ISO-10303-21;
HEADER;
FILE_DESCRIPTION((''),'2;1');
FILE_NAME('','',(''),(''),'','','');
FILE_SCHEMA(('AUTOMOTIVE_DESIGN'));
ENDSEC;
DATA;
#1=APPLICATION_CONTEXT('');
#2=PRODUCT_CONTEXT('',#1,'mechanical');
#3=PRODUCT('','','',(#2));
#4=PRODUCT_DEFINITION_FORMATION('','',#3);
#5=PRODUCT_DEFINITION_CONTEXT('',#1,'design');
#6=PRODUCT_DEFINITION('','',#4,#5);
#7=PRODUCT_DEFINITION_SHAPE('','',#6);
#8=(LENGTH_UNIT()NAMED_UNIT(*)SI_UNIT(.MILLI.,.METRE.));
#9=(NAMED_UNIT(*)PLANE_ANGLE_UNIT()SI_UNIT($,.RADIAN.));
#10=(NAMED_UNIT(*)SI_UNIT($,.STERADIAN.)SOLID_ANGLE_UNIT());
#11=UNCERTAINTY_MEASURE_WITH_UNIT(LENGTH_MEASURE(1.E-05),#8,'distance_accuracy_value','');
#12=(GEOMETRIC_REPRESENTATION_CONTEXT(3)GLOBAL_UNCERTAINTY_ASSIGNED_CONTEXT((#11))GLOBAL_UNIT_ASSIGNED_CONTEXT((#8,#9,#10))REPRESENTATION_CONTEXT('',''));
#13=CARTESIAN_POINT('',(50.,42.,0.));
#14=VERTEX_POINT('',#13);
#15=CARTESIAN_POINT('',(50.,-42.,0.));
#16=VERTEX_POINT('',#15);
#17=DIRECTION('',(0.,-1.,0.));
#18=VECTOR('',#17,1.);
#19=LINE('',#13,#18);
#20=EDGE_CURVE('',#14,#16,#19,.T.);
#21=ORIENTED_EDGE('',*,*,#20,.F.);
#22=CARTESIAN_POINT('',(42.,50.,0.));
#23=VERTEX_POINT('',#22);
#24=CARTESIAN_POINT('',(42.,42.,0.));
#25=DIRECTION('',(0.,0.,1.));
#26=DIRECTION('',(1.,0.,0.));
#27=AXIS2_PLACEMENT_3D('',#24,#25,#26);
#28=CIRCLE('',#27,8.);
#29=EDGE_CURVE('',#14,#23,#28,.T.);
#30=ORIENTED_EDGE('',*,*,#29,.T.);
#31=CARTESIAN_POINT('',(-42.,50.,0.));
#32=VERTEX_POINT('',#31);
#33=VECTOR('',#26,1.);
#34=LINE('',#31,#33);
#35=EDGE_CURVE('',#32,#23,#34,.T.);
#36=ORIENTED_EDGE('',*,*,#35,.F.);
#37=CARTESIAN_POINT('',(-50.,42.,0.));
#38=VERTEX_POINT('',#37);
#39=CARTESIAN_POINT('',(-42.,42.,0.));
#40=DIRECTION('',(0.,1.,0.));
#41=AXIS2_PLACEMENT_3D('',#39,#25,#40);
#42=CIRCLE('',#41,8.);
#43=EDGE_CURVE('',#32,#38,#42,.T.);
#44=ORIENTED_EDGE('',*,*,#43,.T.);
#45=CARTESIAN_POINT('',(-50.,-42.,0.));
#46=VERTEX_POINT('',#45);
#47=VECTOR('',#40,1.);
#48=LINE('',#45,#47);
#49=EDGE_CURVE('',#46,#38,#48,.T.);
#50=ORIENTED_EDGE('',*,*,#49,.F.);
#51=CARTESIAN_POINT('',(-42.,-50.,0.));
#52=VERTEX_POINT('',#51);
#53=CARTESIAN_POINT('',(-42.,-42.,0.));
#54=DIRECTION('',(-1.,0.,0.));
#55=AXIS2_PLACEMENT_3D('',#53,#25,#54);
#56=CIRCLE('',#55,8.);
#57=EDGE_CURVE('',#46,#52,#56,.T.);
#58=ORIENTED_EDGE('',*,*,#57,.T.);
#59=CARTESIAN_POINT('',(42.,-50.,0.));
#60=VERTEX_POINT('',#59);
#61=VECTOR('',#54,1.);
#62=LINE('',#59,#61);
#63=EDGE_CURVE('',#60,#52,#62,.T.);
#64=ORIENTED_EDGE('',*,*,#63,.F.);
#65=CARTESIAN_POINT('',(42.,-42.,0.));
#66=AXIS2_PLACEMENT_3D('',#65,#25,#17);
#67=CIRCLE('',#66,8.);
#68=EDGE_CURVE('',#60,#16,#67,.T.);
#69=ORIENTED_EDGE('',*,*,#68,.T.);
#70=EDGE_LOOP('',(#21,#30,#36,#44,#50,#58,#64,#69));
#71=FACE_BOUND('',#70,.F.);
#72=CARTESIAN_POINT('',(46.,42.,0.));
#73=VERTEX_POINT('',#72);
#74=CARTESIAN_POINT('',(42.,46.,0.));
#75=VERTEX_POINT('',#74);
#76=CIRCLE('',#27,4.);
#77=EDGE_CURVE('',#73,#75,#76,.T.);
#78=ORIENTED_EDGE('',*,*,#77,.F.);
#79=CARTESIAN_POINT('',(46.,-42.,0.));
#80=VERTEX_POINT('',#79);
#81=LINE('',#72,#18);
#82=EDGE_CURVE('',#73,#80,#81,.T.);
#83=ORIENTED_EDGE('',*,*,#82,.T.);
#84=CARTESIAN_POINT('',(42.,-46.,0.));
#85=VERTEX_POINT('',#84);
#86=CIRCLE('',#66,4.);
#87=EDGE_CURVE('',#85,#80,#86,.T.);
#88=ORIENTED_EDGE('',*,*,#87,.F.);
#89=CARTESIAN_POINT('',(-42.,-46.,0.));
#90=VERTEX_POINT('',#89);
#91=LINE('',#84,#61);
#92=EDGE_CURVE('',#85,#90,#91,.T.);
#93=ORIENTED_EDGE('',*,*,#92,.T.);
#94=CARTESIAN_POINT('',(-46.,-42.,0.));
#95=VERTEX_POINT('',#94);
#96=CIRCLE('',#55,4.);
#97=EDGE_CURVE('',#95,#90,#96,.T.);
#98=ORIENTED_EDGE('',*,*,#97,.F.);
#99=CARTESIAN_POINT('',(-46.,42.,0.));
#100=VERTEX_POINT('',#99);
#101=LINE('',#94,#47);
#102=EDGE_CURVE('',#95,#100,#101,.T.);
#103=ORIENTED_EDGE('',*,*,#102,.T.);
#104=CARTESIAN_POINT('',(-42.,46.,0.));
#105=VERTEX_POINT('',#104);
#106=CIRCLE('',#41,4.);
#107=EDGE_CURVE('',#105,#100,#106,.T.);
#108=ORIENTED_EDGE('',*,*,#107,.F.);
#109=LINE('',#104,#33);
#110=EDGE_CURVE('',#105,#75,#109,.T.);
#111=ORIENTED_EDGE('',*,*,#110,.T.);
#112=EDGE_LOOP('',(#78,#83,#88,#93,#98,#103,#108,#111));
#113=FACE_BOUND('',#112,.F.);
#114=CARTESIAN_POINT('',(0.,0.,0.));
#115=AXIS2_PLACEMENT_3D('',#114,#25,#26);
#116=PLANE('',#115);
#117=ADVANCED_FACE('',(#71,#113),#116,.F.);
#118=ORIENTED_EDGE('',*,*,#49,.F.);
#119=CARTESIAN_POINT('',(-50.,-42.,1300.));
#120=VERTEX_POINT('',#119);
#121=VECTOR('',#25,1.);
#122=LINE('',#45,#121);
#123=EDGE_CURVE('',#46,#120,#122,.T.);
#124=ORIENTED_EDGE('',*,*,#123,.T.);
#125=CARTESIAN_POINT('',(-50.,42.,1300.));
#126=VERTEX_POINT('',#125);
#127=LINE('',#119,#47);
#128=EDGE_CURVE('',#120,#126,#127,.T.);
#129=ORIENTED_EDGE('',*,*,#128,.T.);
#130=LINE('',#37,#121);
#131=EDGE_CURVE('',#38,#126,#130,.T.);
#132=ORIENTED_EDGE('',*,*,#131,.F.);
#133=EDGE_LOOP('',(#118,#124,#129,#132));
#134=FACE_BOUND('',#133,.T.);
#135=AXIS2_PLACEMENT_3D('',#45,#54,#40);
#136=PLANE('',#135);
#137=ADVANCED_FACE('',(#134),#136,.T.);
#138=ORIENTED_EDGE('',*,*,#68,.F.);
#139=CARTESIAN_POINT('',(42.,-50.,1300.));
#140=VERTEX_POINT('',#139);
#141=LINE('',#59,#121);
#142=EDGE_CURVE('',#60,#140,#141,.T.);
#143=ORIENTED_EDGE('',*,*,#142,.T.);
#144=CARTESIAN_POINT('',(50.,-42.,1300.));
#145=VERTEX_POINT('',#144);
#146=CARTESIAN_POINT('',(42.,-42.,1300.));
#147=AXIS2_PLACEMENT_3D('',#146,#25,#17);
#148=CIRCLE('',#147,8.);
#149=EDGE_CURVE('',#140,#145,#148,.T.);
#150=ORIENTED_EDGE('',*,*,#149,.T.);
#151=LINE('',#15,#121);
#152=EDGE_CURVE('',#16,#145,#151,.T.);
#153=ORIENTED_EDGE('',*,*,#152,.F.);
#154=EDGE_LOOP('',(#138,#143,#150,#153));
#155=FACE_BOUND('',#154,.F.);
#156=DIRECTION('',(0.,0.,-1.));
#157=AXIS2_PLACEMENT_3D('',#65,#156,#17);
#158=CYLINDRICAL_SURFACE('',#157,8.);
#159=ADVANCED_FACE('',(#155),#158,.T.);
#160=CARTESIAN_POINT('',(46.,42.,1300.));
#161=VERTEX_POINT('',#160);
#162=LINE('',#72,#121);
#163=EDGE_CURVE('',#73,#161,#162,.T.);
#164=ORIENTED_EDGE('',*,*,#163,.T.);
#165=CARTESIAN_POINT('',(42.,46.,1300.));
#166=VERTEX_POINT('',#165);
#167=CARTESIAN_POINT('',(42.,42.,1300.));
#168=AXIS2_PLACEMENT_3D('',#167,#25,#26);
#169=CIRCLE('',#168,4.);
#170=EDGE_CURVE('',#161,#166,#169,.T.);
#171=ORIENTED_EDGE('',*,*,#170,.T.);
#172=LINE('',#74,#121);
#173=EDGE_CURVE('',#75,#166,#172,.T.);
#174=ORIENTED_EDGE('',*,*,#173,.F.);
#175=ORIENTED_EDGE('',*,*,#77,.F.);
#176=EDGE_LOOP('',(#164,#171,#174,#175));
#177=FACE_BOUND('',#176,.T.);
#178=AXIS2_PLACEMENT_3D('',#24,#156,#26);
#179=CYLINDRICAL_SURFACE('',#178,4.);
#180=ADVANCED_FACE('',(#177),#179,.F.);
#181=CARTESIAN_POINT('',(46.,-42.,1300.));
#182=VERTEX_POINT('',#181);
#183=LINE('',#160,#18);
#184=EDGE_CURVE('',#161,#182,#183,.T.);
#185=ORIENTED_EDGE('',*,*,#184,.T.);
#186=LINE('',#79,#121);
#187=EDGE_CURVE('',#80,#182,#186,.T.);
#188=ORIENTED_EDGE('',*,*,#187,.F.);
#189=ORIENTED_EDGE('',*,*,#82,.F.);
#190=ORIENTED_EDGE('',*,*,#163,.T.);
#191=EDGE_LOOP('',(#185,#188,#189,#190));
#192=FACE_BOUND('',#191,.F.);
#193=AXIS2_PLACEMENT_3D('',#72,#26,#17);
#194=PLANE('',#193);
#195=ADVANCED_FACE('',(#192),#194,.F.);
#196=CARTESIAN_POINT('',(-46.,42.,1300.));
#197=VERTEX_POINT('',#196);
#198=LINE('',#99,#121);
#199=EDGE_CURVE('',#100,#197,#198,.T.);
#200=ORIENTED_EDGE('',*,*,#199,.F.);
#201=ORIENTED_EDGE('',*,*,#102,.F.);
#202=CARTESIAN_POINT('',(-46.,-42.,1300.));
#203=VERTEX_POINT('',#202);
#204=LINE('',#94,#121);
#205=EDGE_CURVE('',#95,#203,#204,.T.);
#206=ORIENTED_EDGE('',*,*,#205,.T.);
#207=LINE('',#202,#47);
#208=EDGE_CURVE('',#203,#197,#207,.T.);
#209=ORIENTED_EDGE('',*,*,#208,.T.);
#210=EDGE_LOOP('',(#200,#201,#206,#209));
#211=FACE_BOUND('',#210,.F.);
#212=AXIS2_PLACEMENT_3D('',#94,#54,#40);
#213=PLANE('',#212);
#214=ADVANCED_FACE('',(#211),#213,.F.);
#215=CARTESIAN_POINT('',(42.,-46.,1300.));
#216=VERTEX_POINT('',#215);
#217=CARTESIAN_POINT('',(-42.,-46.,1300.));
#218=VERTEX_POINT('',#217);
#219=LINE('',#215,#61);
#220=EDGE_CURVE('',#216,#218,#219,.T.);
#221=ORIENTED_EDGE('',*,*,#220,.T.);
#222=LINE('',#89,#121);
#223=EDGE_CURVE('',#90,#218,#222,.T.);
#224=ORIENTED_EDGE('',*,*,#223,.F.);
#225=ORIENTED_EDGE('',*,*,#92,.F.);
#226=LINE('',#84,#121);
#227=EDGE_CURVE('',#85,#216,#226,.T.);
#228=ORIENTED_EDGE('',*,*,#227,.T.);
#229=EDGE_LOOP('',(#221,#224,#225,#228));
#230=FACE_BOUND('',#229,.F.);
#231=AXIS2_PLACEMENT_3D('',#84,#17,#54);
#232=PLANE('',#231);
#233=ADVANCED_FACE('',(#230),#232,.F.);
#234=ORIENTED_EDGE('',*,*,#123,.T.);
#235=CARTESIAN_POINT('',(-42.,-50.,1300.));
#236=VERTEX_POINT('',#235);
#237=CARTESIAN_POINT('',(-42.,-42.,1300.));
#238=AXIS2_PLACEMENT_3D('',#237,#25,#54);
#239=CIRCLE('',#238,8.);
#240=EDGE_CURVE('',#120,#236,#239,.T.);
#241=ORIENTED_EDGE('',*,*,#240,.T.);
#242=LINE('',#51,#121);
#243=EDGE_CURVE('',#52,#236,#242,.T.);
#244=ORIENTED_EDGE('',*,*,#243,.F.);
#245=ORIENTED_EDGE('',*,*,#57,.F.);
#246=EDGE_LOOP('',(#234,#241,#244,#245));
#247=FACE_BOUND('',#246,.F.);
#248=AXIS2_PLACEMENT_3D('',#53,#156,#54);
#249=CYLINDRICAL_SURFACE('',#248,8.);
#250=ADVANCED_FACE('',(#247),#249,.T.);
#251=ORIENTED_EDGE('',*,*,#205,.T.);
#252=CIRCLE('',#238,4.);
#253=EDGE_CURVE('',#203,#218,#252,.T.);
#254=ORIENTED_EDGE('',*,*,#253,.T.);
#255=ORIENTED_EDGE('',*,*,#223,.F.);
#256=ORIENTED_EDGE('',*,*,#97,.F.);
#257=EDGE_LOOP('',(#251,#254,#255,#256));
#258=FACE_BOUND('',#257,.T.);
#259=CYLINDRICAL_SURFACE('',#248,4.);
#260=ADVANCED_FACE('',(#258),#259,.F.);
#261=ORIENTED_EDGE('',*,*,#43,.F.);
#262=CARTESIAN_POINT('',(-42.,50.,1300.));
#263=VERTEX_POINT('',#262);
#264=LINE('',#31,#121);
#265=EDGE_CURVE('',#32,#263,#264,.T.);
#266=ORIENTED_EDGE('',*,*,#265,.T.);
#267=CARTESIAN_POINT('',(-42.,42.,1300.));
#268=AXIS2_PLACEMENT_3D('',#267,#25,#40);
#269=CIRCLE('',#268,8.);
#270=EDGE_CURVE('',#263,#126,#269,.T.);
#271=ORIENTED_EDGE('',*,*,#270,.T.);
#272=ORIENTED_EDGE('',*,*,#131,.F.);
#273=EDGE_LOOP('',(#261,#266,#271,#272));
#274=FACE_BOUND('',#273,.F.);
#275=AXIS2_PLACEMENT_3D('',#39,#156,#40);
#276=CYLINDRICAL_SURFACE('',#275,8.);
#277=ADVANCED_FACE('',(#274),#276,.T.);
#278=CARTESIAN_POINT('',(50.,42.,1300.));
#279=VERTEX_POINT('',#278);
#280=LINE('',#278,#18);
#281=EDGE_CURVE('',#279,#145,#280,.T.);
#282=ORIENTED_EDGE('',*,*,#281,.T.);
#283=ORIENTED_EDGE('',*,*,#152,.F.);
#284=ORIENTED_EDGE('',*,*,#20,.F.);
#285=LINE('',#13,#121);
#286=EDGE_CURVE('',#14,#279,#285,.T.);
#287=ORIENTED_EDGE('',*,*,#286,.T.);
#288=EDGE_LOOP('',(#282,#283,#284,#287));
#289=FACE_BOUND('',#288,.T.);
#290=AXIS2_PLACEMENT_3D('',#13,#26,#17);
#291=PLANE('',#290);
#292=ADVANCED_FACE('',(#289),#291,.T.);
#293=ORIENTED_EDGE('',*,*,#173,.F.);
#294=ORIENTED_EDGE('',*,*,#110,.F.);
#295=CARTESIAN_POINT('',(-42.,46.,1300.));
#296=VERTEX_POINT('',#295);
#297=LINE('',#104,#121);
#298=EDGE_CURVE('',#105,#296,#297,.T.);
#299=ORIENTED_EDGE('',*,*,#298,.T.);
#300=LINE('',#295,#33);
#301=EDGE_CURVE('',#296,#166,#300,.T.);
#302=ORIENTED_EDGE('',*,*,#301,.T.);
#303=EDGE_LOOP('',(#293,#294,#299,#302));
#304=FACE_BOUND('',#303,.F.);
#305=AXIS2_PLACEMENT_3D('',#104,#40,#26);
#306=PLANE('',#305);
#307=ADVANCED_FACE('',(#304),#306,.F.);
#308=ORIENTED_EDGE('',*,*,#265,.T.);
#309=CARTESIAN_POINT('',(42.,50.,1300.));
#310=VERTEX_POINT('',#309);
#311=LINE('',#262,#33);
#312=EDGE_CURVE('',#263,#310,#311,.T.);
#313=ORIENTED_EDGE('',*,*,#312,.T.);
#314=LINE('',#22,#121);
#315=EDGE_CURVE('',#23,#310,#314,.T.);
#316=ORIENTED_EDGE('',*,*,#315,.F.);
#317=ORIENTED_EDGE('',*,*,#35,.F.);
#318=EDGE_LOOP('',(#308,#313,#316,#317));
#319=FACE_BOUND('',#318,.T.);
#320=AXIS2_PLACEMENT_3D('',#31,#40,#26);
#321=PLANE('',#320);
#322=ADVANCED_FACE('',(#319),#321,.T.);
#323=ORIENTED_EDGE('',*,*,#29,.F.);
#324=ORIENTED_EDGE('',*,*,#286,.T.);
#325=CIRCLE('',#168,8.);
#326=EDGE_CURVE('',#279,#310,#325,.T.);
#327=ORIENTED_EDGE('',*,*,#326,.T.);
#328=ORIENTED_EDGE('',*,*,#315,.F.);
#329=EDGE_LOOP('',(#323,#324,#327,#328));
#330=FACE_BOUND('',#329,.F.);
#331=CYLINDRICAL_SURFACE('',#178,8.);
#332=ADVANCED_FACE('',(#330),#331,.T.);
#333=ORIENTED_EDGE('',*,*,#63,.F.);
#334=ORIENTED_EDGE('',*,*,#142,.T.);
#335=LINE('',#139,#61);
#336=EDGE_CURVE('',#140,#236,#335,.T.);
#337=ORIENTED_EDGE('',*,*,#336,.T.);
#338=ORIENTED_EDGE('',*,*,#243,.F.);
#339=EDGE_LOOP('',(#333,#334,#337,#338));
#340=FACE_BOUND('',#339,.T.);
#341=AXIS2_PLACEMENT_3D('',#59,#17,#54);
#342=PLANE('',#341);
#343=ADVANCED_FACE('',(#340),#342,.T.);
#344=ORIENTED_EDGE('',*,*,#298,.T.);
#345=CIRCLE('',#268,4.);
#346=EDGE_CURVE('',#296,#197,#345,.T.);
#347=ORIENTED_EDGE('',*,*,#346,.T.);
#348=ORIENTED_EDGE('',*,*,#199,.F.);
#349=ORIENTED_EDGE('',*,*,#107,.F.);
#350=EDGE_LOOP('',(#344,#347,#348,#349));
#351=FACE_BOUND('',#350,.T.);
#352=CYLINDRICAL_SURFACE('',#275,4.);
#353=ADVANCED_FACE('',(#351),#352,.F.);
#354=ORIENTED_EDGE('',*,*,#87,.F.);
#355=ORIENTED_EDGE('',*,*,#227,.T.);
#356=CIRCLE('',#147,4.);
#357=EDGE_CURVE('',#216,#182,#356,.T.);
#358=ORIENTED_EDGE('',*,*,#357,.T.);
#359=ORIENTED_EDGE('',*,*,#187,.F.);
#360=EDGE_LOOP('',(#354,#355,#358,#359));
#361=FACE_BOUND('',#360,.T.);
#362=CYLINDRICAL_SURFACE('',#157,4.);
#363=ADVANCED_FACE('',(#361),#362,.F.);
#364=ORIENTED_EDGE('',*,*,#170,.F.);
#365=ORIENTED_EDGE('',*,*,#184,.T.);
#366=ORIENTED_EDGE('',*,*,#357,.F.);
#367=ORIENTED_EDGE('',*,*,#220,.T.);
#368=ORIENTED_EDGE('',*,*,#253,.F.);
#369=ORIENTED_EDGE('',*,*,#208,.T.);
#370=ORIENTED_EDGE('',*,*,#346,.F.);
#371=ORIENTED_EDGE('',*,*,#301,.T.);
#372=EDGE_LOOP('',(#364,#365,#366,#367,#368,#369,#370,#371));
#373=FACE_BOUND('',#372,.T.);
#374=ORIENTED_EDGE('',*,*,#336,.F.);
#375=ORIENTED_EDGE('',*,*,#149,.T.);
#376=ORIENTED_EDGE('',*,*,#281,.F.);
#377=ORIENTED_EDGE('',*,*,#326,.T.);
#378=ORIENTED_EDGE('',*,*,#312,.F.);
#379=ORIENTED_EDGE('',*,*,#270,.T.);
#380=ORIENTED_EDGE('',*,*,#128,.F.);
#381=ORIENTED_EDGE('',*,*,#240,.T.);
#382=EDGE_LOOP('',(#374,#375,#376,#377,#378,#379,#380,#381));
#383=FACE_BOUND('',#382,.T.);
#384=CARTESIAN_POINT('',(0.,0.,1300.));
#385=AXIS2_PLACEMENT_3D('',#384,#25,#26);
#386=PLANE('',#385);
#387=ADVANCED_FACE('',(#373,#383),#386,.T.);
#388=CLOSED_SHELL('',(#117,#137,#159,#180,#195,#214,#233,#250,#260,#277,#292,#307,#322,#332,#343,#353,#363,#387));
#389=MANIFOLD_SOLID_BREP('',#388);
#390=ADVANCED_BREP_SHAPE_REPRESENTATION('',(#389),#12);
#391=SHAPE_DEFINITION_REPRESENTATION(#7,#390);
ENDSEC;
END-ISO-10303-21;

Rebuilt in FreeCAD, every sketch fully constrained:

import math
import FreeCAD as App
import Part
import Sketcher
Q = App.Units.Quantity

doc = App.newDocument("Part")
body = doc.addObject("PartDesign::Body", "Body")

# Sketch on XY plane
sketch1 = body.newObject("Sketcher::SketchObject", "Sketch")
sketch1.AttachmentSupport = (doc.getObject("XY_Plane"), [""])
sketch1.MapMode = "FlatFace"
sketch1.addGeometry(Part.LineSegment(App.Vector(-50, 42, 0), App.Vector(-50, -42, 0)), False)
sketch1.addGeometry(Part.ArcOfCircle(Part.Circle(App.Vector(-42, -42, 0), App.Vector(0, 0, 1), 8), math.radians(180), math.radians(270)), False)
sketch1.addGeometry(Part.LineSegment(App.Vector(-42, -50, 0), App.Vector(42, -50, 0)), False)
sketch1.addGeometry(Part.ArcOfCircle(Part.Circle(App.Vector(42, -42, 0), App.Vector(0, 0, 1), 8), math.radians(-90), math.radians(0)), False)
sketch1.addGeometry(Part.LineSegment(App.Vector(50, -42, 0), App.Vector(50, 42, 0)), False)
sketch1.addGeometry(Part.ArcOfCircle(Part.Circle(App.Vector(42, 42, 0), App.Vector(0, 0, 1), 8), math.radians(0), math.radians(90)), False)
sketch1.addGeometry(Part.LineSegment(App.Vector(42, 50, 0), App.Vector(-42, 50, 0)), False)
sketch1.addGeometry(Part.ArcOfCircle(Part.Circle(App.Vector(-42, 42, 0), App.Vector(0, 0, 1), 8), math.radians(90), math.radians(180)), False)
sketch1.addGeometry(Part.ArcOfCircle(Part.Circle(App.Vector(-42, 42, 0), App.Vector(0, 0, 1), 4), math.radians(90), math.radians(180)), False)
sketch1.addGeometry(Part.LineSegment(App.Vector(-42, 46, 0), App.Vector(42, 46, 0)), False)
sketch1.addGeometry(Part.ArcOfCircle(Part.Circle(App.Vector(42, 42, 0), App.Vector(0, 0, 1), 4), math.radians(0), math.radians(90)), False)
sketch1.addGeometry(Part.LineSegment(App.Vector(46, 42, 0), App.Vector(46, -42, 0)), False)
sketch1.addGeometry(Part.ArcOfCircle(Part.Circle(App.Vector(42, -42, 0), App.Vector(0, 0, 1), 4), math.radians(-90), math.radians(0)), False)
sketch1.addGeometry(Part.LineSegment(App.Vector(42, -46, 0), App.Vector(-42, -46, 0)), False)
sketch1.addGeometry(Part.ArcOfCircle(Part.Circle(App.Vector(-42, -42, 0), App.Vector(0, 0, 1), 4), math.radians(180), math.radians(270)), False)
sketch1.addGeometry(Part.LineSegment(App.Vector(-46, -42, 0), App.Vector(-46, 42, 0)), False)
sketch1.addConstraint(Sketcher.Constraint("Tangent", 0, 2, 1, 1))
sketch1.addConstraint(Sketcher.Constraint("Tangent", 1, 2, 2, 1))
sketch1.addConstraint(Sketcher.Constraint("Tangent", 2, 2, 3, 1))
sketch1.addConstraint(Sketcher.Constraint("Tangent", 3, 2, 4, 1))
sketch1.addConstraint(Sketcher.Constraint("Tangent", 4, 2, 5, 1))
sketch1.addConstraint(Sketcher.Constraint("Tangent", 5, 2, 6, 1))
sketch1.addConstraint(Sketcher.Constraint("Tangent", 6, 2, 7, 1))
sketch1.addConstraint(Sketcher.Constraint("Tangent", 7, 2, 0, 1))
sketch1.addConstraint(Sketcher.Constraint("Tangent", 8, 1, 9, 1))
sketch1.addConstraint(Sketcher.Constraint("Tangent", 9, 2, 10, 2))
sketch1.addConstraint(Sketcher.Constraint("Tangent", 10, 1, 11, 1))
sketch1.addConstraint(Sketcher.Constraint("Tangent", 11, 2, 12, 2))
sketch1.addConstraint(Sketcher.Constraint("Tangent", 12, 1, 13, 1))
sketch1.addConstraint(Sketcher.Constraint("Tangent", 13, 2, 14, 2))
sketch1.addConstraint(Sketcher.Constraint("Tangent", 14, 1, 15, 1))
sketch1.addConstraint(Sketcher.Constraint("Tangent", 15, 2, 8, 2))
sketch1.addConstraint(Sketcher.Constraint("Vertical", 0))
sketch1.addConstraint(Sketcher.Constraint("Horizontal", 2))
sketch1.addConstraint(Sketcher.Constraint("Vertical", 4))
sketch1.addConstraint(Sketcher.Constraint("Horizontal", 6))
sketch1.addConstraint(Sketcher.Constraint("Horizontal", 9))
sketch1.addConstraint(Sketcher.Constraint("Vertical", 11))
sketch1.addConstraint(Sketcher.Constraint("Horizontal", 13))
sketch1.addConstraint(Sketcher.Constraint("Vertical", 15))
sketch1.addConstraint(Sketcher.Constraint("Coincident", 8, 3, 7, 3))
sketch1.addConstraint(Sketcher.Constraint("Coincident", 10, 3, 5, 3))
sketch1.addConstraint(Sketcher.Constraint("Coincident", 12, 3, 3, 3))
sketch1.addConstraint(Sketcher.Constraint("Equal", 1, 3))
sketch1.addConstraint(Sketcher.Constraint("Equal", 3, 5))
sketch1.addConstraint(Sketcher.Constraint("Equal", 5, 7))
sketch1.addConstraint(Sketcher.Constraint("Equal", 12, 14))
sketch1.addConstraint(Sketcher.Constraint("Symmetric", 1, 3, 5, 3, -1, 1))
sketch1.addConstraint(Sketcher.Constraint("Equal", 13, 0))
sketch1.addConstraint(Sketcher.Constraint("Radius", 1, Q("8 mm")))
sketch1.addConstraint(Sketcher.Constraint("Radius", 8, Q("4 mm")))
sketch1.addConstraint(Sketcher.Constraint("DistanceX", 0, 2, -1, 1, Q("50 mm")))
pad1 = body.newObject("PartDesign::Pad", "Pad")
pad1.Profile = sketch1
pad1.Length = 1300

doc.recompute()
